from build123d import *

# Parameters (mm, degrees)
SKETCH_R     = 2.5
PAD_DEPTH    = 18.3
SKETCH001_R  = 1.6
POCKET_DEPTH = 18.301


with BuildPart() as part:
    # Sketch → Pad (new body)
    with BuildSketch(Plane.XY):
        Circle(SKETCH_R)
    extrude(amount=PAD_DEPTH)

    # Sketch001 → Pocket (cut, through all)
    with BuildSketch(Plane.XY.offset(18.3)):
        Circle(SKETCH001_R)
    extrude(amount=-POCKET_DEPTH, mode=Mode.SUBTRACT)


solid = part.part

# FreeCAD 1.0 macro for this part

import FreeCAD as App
import Part
import Sketcher
Q = App.Units.Quantity

doc = App.newDocument("Part")
body = doc.addObject("PartDesign::Body", "Body")

# Sketch on XY plane
sketch1 = body.newObject("Sketcher::SketchObject", "Sketch")
sketch1.AttachmentSupport = (doc.getObject("XY_Plane"), [""])
sketch1.MapMode = "FlatFace"
sketch1.addGeometry(Part.Circle(App.Vector(0, 0, 0), App.Vector(0, 0, 1), 2.5), False)
sketch1.addConstraint([
    Sketcher.Constraint("Coincident", 0, 3, -1, 1),
    Sketcher.Constraint("Diameter", 0, Q("5 mm")),
])
pad1 = body.newObject("PartDesign::Pad", "Pad")
pad1.Profile = sketch1
pad1.Length = 18.3

# Sketch on XY plane
sketch2 = body.newObject("Sketcher::SketchObject", "Sketch001")
sketch2.AttachmentSupport = (doc.getObject("XY_Plane"), [""])
sketch2.MapMode = "FlatFace"
sketch2.AttachmentOffset = App.Placement(App.Vector(0, 0, 18.3), App.Rotation())
sketch2.addGeometry(Part.Circle(App.Vector(0, 0, 0), App.Vector(0, 0, 1), 1.6), False)
sketch2.addConstraint([
    Sketcher.Constraint("Coincident", 0, 3, -1, 1),
    Sketcher.Constraint("Diameter", 0, Q("3.2 mm")),
])
pocket1 = body.newObject("PartDesign::Pocket", "Pocket")
pocket1.Profile = sketch2
pocket1.Type = "ThroughAll"

doc.recompute()
